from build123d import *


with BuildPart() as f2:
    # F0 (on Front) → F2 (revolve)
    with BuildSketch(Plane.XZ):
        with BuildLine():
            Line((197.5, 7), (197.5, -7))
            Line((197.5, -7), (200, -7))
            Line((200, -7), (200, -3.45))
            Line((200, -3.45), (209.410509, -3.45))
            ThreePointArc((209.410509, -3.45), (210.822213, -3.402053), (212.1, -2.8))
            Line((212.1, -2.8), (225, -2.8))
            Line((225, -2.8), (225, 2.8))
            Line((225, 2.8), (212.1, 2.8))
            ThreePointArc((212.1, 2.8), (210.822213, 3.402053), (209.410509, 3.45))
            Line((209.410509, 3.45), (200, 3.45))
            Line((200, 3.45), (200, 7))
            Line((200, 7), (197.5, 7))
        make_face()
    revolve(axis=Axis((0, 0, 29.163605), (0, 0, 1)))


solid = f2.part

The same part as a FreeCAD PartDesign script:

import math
import FreeCAD as App
import Part
import Sketcher

doc = App.newDocument("Part")
body = doc.addObject("PartDesign::Body", "Body")

# Sketch on XZ plane
sketch1 = body.newObject("Sketcher::SketchObject", "Sketch")
sketch1.AttachmentSupport = (doc.getObject("XZ_Plane"), [""])
sketch1.MapMode = "FlatFace"
sketch1.addGeometry(Part.LineSegment(App.Vector(197.5, 7, 0), App.Vector(197.5, -7, 0)), False)
sketch1.addGeometry(Part.LineSegment(App.Vector(197.5, -7, 0), App.Vector(200, -7, 0)), False)
sketch1.addGeometry(Part.LineSegment(App.Vector(200, -7, 0), App.Vector(200, -3.5, 0)), False)
sketch1.addGeometry(Part.LineSegment(App.Vector(200, -3.5, 0), App.Vector(209.4, -3.5, 0)), False)
sketch1.addGeometry(Part.ArcOfCircle(Part.Circle(App.Vector(210, 0, 0), App.Vector(0, 0, 1), 3.5), math.radians(-100), math.radians(-53)), False)
sketch1.addGeometry(Part.LineSegment(App.Vector(212.1, -2.8, 0), App.Vector(225, -2.8, 0)), False)
sketch1.addGeometry(Part.LineSegment(App.Vector(225, -2.8, 0), App.Vector(225, 2.8, 0)), False)
sketch1.addGeometry(Part.LineSegment(App.Vector(225, 2.8, 0), App.Vector(212.1, 2.8, 0)), False)
sketch1.addGeometry(Part.ArcOfCircle(Part.Circle(App.Vector(210, 0, 0), App.Vector(0, 0, 1), 3.5), math.radians(53), math.radians(100)), False)
sketch1.addGeometry(Part.LineSegment(App.Vector(209.4, 3.5, 0), App.Vector(200, 3.5, 0)), False)
sketch1.addGeometry(Part.LineSegment(App.Vector(200, 3.5, 0), App.Vector(200, 7, 0)), False)
sketch1.addGeometry(Part.LineSegment(App.Vector(200, 7, 0), App.Vector(197.5, 7, 0)), False)
sketch1.addConstraint(Sketcher.Constraint("Coincident", 0, 2, 1, 1))
sketch1.addConstraint(Sketcher.Constraint("Coincident", 1, 2, 2, 1))
sketch1.addConstraint(Sketcher.Constraint("Coincident", 2, 2, 3, 1))
sketch1.addConstraint(Sketcher.Constraint("Coincident", 3, 2, 4, 1))
sketch1.addConstraint(Sketcher.Constraint("Coincident", 4, 2, 5, 1))
sketch1.addConstraint(Sketcher.Constraint("Coincident", 5, 2, 6, 1))
sketch1.addConstraint(Sketcher.Constraint("Coincident", 6, 2, 7, 1))
sketch1.addConstraint(Sketcher.Constraint("Coincident", 7, 2, 8, 1))
sketch1.addConstraint(Sketcher.Constraint("Coincident", 8, 2, 9, 1))
sketch1.addConstraint(Sketcher.Constraint("Coincident", 9, 2, 10, 1))
sketch1.addConstraint(Sketcher.Constraint("Coincident", 10, 2, 11, 1))
sketch1.addConstraint(Sketcher.Constraint("Coincident", 11, 2, 0, 1))
sketch1.addConstraint(Sketcher.Constraint("Vertical", 0))
sketch1.addConstraint(Sketcher.Constraint("Horizontal", 1))
sketch1.addConstraint(Sketcher.Constraint("Vertical", 2))
sketch1.addConstraint(Sketcher.Constraint("Horizontal", 3))
sketch1.addConstraint(Sketcher.Constraint("Horizontal", 5))
sketch1.addConstraint(Sketcher.Constraint("Vertical", 6))
sketch1.addConstraint(Sketcher.Constraint("Horizontal", 7))
sketch1.addConstraint(Sketcher.Constraint("Horizontal", 9))
sketch1.addConstraint(Sketcher.Constraint("Vertical", 10))
sketch1.addConstraint(Sketcher.Constraint("Horizontal", 11))
sketch1.addConstraint(Sketcher.Constraint("Coincident", 8, 3, 4, 3))
sketch1.addConstraint(Sketcher.Constraint("Equal", 4, 8))
sketch1.addConstraint(Sketcher.Constraint("Symmetric", 4, 2, 7, 2, -1))
sketch1.addConstraint(Sketcher.Constraint("Symmetric", 2, 2, 9, 2, -1))
sketch1.addConstraint(Sketcher.Constraint("Equal", 2, 10))
sketch1.addConstraint(Sketcher.Constraint("Radius", 4, 3.500002))
sketch1.addConstraint(Sketcher.Constraint("DistanceY", 0, 2, 0, 1, 14.0))
sketch1.addConstraint(Sketcher.Constraint("DistanceX", 1, 1, 1, 2, 2.5))
sketch1.addConstraint(Sketcher.Constraint("DistanceX", 5, 1, 5, 2, 12.9))
sketch1.addConstraint(Sketcher.Constraint("DistanceY", 6, 1, 6, 2, 5.6))
sketch1.addConstraint(Sketcher.Constraint("DistanceX", -1, 1, 4, 3, 210.0))
sketch1.addConstraint(Sketcher.Constraint("DistanceX", -1, 1, 1, 2, 200.0))
sketch1.addConstraint(Sketcher.Constraint("DistanceY", 2, 1, 2, 2, 3.55))
revolution = body.newObject("PartDesign::Revolution", "Revolution")
revolution.Profile = sketch1
revolution.ReferenceAxis = (sketch1, ["V_Axis"])
revolution.Angle = 360

doc.recompute()
